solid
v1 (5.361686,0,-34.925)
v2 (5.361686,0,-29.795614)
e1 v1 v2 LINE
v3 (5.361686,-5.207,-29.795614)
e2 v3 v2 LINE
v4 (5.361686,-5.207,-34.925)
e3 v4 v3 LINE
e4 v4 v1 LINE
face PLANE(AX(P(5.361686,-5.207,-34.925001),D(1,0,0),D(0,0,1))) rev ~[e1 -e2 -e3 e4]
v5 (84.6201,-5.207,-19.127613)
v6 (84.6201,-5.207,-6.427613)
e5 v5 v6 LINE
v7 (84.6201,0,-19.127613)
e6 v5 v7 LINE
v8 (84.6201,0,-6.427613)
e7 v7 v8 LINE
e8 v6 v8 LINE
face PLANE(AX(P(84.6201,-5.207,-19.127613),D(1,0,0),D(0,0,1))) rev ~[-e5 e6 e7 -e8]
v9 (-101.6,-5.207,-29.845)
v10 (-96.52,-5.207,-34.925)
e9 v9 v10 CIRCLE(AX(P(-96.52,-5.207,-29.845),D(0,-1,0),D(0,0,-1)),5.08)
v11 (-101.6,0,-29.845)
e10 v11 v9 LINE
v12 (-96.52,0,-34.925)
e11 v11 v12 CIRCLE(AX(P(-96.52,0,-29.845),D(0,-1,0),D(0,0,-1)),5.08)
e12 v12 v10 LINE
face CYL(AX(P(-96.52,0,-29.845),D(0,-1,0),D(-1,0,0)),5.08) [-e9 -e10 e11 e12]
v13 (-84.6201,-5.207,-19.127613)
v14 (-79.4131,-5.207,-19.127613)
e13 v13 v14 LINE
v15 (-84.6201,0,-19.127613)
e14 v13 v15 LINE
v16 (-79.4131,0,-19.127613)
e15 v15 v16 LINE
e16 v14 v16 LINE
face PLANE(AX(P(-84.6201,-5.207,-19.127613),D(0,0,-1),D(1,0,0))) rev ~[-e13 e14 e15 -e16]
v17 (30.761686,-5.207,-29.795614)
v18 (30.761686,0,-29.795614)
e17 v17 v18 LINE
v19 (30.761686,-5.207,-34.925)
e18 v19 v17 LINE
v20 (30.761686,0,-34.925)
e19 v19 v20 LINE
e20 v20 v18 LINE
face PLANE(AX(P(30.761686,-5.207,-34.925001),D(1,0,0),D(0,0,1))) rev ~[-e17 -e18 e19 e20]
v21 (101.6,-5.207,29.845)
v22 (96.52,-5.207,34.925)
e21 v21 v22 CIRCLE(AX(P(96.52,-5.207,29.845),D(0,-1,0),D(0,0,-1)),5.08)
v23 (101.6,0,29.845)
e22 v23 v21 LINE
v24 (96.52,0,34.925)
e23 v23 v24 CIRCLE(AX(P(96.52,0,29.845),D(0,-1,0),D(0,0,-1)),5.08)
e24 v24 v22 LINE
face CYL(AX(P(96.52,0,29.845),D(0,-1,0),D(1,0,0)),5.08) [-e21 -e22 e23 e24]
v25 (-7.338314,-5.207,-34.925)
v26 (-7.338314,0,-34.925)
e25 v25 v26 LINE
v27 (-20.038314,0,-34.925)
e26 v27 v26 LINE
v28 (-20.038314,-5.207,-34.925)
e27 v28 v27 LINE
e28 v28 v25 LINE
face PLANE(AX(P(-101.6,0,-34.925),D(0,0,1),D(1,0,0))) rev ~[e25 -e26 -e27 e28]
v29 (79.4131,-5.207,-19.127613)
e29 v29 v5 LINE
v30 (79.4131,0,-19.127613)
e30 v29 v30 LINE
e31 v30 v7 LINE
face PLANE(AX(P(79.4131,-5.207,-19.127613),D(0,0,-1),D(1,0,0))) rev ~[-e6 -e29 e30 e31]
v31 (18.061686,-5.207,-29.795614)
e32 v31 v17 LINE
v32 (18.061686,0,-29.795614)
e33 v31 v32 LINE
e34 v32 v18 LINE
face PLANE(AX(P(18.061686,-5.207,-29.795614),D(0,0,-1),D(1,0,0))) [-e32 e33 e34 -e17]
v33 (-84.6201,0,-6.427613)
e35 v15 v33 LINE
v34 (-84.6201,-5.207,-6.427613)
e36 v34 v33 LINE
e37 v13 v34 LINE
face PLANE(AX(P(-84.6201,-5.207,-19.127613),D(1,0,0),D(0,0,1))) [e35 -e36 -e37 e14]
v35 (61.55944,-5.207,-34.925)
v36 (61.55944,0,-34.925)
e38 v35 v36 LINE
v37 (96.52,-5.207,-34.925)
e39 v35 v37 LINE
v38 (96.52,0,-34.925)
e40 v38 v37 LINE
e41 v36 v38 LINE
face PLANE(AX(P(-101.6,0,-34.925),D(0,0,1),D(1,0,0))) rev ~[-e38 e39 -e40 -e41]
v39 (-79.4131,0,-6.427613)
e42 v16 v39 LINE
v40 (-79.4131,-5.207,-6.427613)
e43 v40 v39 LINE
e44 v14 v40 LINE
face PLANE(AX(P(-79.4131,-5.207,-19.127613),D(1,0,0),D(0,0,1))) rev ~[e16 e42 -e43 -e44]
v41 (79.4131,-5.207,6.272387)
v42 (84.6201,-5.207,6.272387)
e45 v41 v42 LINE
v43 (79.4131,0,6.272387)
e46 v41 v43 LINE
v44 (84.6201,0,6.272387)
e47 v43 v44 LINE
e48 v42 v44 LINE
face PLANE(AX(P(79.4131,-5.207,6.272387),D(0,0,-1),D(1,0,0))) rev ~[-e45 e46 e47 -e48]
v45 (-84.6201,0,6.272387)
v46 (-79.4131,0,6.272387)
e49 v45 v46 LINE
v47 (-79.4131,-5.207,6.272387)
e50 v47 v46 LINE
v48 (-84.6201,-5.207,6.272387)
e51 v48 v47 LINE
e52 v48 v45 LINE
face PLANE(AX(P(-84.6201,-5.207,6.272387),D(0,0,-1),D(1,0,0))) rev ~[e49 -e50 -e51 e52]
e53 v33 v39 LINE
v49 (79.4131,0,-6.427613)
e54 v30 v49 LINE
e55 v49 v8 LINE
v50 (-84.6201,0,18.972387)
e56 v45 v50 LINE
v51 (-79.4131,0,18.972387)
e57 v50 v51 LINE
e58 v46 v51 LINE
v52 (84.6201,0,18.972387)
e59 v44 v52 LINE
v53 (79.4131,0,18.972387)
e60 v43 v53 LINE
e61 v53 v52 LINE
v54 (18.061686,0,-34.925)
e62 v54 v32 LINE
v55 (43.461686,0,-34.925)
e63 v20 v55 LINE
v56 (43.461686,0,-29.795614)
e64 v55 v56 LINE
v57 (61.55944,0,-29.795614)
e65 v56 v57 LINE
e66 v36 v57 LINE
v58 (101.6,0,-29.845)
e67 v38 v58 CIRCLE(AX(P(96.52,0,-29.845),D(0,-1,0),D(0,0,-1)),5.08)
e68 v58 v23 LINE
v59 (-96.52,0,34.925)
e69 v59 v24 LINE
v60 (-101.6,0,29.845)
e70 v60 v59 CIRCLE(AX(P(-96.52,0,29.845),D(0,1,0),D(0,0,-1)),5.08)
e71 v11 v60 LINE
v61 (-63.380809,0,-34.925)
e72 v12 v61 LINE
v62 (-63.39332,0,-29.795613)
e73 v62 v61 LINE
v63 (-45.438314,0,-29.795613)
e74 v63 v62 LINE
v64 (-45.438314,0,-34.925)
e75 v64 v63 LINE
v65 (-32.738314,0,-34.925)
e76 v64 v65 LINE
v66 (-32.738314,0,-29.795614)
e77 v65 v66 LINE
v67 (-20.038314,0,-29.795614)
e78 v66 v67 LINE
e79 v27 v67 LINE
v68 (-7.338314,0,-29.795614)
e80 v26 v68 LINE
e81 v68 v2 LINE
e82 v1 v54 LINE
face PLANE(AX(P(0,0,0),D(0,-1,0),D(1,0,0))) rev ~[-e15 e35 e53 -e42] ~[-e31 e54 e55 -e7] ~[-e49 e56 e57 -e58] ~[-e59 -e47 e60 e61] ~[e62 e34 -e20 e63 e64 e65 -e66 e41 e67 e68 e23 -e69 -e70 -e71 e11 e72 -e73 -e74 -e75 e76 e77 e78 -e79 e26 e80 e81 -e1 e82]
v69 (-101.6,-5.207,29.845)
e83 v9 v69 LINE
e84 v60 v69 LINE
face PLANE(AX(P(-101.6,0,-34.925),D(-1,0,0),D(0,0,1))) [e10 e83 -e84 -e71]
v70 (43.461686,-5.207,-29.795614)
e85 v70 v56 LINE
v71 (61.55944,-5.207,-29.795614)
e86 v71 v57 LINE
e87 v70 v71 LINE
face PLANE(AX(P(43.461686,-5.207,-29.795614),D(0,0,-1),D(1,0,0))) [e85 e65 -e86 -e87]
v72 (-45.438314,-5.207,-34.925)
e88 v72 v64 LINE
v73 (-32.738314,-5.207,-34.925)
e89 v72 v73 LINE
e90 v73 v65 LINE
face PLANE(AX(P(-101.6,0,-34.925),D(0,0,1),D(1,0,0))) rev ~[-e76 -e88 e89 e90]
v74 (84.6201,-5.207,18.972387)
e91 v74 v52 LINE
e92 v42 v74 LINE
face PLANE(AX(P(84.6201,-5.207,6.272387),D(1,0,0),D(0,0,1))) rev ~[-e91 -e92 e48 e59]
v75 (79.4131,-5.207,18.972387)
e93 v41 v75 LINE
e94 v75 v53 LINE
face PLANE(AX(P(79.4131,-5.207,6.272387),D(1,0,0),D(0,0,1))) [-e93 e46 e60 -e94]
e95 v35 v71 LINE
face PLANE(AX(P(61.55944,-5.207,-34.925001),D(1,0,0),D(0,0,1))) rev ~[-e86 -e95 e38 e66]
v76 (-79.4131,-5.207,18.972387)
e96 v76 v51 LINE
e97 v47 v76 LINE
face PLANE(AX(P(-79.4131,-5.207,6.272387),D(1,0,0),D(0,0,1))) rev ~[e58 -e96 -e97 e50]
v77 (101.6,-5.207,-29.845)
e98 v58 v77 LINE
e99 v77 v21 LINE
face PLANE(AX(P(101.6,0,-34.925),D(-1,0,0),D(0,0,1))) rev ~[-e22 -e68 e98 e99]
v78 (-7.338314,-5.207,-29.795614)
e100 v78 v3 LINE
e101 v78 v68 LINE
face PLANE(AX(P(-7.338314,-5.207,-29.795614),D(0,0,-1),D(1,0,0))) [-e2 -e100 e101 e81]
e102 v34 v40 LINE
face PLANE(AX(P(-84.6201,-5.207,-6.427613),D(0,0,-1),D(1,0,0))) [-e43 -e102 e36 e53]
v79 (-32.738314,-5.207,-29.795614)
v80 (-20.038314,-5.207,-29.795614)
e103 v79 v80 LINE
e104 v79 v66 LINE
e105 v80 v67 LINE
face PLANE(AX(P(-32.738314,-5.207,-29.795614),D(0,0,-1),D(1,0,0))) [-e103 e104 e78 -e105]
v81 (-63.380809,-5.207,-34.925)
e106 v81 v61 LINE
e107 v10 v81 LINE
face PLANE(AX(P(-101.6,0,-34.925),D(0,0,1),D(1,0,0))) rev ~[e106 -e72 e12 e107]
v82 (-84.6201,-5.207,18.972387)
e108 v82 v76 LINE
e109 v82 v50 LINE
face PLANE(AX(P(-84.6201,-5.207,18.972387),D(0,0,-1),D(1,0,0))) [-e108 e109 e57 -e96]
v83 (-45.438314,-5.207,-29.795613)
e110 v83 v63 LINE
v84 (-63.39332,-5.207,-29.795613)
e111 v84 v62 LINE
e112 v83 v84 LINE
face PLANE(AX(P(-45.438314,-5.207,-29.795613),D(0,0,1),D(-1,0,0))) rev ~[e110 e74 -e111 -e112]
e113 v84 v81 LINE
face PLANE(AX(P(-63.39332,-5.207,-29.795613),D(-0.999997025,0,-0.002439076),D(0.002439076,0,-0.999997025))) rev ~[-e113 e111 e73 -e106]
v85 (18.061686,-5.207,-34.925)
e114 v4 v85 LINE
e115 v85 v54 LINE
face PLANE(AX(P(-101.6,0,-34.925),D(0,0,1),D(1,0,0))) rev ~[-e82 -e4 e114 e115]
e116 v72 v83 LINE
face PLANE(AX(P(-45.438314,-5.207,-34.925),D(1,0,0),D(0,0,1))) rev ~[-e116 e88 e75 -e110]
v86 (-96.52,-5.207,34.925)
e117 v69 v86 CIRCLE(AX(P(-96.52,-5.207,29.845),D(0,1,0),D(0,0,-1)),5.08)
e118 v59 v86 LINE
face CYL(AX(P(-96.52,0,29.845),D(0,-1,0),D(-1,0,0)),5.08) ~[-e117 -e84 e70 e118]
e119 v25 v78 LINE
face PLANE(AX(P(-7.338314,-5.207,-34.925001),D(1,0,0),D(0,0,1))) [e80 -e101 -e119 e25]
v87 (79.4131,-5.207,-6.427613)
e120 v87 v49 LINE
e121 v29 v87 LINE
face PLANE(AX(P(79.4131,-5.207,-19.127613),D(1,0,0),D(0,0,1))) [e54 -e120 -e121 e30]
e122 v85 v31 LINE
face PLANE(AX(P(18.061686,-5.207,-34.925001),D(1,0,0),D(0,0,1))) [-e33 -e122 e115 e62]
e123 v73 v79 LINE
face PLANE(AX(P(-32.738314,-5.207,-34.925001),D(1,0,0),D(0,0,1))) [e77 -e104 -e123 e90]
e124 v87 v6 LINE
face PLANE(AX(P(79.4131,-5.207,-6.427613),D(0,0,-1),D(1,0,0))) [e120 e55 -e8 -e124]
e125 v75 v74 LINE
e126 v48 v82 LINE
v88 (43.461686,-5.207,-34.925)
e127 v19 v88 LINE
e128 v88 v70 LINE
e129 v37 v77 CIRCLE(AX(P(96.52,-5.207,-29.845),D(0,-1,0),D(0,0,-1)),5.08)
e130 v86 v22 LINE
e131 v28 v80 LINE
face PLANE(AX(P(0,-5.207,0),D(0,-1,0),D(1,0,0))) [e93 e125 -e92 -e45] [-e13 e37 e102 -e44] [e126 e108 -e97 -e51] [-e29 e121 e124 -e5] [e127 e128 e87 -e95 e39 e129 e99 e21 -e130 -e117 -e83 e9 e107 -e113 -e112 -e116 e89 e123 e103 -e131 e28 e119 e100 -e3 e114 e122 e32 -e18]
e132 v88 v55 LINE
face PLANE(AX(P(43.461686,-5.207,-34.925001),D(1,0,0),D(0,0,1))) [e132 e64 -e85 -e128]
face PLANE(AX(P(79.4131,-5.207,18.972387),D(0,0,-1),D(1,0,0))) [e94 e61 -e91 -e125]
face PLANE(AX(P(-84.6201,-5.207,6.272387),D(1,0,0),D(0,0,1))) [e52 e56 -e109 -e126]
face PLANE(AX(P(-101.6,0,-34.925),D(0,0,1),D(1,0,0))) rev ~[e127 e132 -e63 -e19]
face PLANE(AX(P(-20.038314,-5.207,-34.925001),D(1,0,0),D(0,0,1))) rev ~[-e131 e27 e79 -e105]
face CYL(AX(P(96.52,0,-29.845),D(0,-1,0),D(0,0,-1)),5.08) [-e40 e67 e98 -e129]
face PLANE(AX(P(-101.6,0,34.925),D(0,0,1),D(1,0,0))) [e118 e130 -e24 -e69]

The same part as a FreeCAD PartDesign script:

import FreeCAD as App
import Part
import Sketcher
Q = App.Units.Quantity


def edges_at(feature, points):
    """Names of the edges that pass closest to the given points."""
    edges = feature.Shape.Edges
    near = lambda p: min(range(len(edges)), key=lambda i: edges[i].distToShape(Part.Vertex(*p))[0])
    return sorted({f"Edge{near(p) + 1}" for p in points})

doc = App.newDocument("Part")
body = doc.addObject("PartDesign::Body", "Body")

# Sketch on XZ plane
sketch1 = body.newObject("Sketcher::SketchObject", "Sketch")
sketch1.AttachmentSupport = (doc.getObject("XZ_Plane"), [""])
sketch1.MapMode = "FlatFace"
sketch1.addGeometry(Part.LineSegment(App.Vector(-102, 35, 0), App.Vector(-102, -35, 0)), False)
sketch1.addGeometry(Part.LineSegment(App.Vector(-102, -35, 0), App.Vector(102, -35, 0)), False)
sketch1.addGeometry(Part.LineSegment(App.Vector(102, -35, 0), App.Vector(102, 35, 0)), False)
sketch1.addGeometry(Part.LineSegment(App.Vector(102, 35, 0), App.Vector(-102, 35, 0)), False)
sketch1.addConstraint(Sketcher.Constraint("Coincident", 0, 2, 1, 1))
sketch1.addConstraint(Sketcher.Constraint("Coincident", 1, 2, 2, 1))
sketch1.addConstraint(Sketcher.Constraint("Coincident", 2, 2, 3, 1))
sketch1.addConstraint(Sketcher.Constraint("Coincident", 3, 2, 0, 1))
sketch1.addConstraint(Sketcher.Constraint("Vertical", 0))
sketch1.addConstraint(Sketcher.Constraint("Horizontal", 1))
sketch1.addConstraint(Sketcher.Constraint("Vertical", 2))
sketch1.addConstraint(Sketcher.Constraint("Horizontal", 3))
sketch1.addConstraint(Sketcher.Constraint("Symmetric", 0, 2, 2, 2, -1, 1))
sketch1.addConstraint(Sketcher.Constraint("DistanceX", 1, 1, 1, 2, Q("8 in")))
sketch1.addConstraint(Sketcher.Constraint("DistanceY", 0, 2, 0, 1, Q("2.75 in")))
pad1 = body.newObject("PartDesign::Pad", "Pad")
pad1.Profile = sketch1
pad1.Length = Q("0.205 in")
doc.recompute()

fillet = body.newObject("PartDesign::Fillet", "Fillet")
fillet.Base = (pad1, edges_at(pad1, [
    (-101.6, -2.603, 34.925),
    (-101.6, -2.603, -34.925),
    (101.6, -2.603, -34.925),
    (101.6, -2.603, 34.925),
]))
fillet.Radius = Q("0.2 in")

# Sketch on XZ plane
sketch2 = body.newObject("Sketcher::SketchObject", "Sketch001")
sketch2.AttachmentSupport = (doc.getObject("XZ_Plane"), [""])
sketch2.MapMode = "FlatFace"
sketch2.AttachmentOffset = App.Placement(App.Vector(0, 0, 0.205 * 25.4), App.Rotation())
sketch2.addGeometry(Part.LineSegment(App.Vector(-85, 19, 0), App.Vector(-85, 6, 0)), False)
sketch2.addGeometry(Part.LineSegment(App.Vector(-85, 6, 0), App.Vector(-79, 6, 0)), False)
sketch2.addGeometry(Part.LineSegment(App.Vector(-79, 6, 0), App.Vector(-79, 19, 0)), False)
sketch2.addGeometry(Part.LineSegment(App.Vector(-79, 19, 0), App.Vector(-85, 19, 0)), False)
sketch2.addGeometry(Part.LineSegment(App.Vector(-85, -6, 0), App.Vector(-85, -19, 0)), False)
sketch2.addGeometry(Part.LineSegment(App.Vector(-85, -19, 0), App.Vector(-79, -19, 0)), False)
sketch2.addGeometry(Part.LineSegment(App.Vector(-79, -19, 0), App.Vector(-79, -6, 0)), False)
sketch2.addGeometry(Part.LineSegment(App.Vector(-79, -6, 0), App.Vector(-85, -6, 0)), False)
sketch2.addGeometry(Part.LineSegment(App.Vector(-63, -35, 0), App.Vector(-45, -35, 0)), False)
sketch2.addGeometry(Part.LineSegment(App.Vector(-45, -35, 0), App.Vector(-45, -30, 0)), False)
sketch2.addGeometry(Part.LineSegment(App.Vector(-45, -30, 0), App.Vector(-63, -30, 0)), False)
sketch2.addGeometry(Part.LineSegment(App.Vector(-63, -30, 0), App.Vector(-63, -35, 0)), False)
sketch2.addGeometry(Part.LineSegment(App.Vector(-33, -30, 0), App.Vector(-33, -35, 0)), False)
sketch2.addGeometry(Part.LineSegment(App.Vector(-33, -35, 0), App.Vector(-20, -35, 0)), False)
sketch2.addGeometry(Part.LineSegment(App.Vector(-20, -35, 0), App.Vector(-20, -30, 0)), False)
sketch2.addGeometry(Part.LineSegment(App.Vector(-20, -30, 0), App.Vector(-33, -30, 0)), False)
sketch2.addGeometry(Part.LineSegment(App.Vector(-7, -30, 0), App.Vector(-7, -35, 0)), False)
sketch2.addGeometry(Part.LineSegment(App.Vector(-7, -35, 0), App.Vector(5, -35, 0)), False)
sketch2.addGeometry(Part.LineSegment(App.Vector(5, -35, 0), App.Vector(5, -30, 0)), False)
sketch2.addGeometry(Part.LineSegment(App.Vector(5, -30, 0), App.Vector(-7, -30, 0)), False)
sketch2.addGeometry(Part.LineSegment(App.Vector(18, -30, 0), App.Vector(18, -35, 0)), False)
sketch2.addGeometry(Part.LineSegment(App.Vector(18, -35, 0), App.Vector(31, -35, 0)), False)
sketch2.addGeometry(Part.LineSegment(App.Vector(31, -35, 0), App.Vector(31, -30, 0)), False)
sketch2.addGeometry(Part.LineSegment(App.Vector(31, -30, 0), App.Vector(18, -30, 0)), False)
sketch2.addGeometry(Part.LineSegment(App.Vector(43, -30, 0), App.Vector(43, -35, 0)), False)
sketch2.addGeometry(Part.LineSegment(App.Vector(43, -35, 0), App.Vector(62, -35, 0)), False)
sketch2.addGeometry(Part.LineSegment(App.Vector(62, -35, 0), App.Vector(62, -30, 0)), False)
sketch2.addGeometry(Part.LineSegment(App.Vector(62, -30, 0), App.Vector(43, -30, 0)), False)
sketch2.addGeometry(Part.LineSegment(App.Vector(79, -6, 0), App.Vector(79, -19, 0)), False)
sketch2.addGeometry(Part.LineSegment(App.Vector(79, -19, 0), App.Vector(85, -19, 0)), False)
sketch2.addGeometry(Part.LineSegment(App.Vector(85, -19, 0), App.Vector(85, -6, 0)), False)
sketch2.addGeometry(Part.LineSegment(App.Vector(85, -6, 0), App.Vector(79, -6, 0)), False)
sketch2.addGeometry(Part.LineSegment(App.Vector(79, 19, 0), App.Vector(79, 6, 0)), False)
sketch2.addGeometry(Part.LineSegment(App.Vector(79, 6, 0), App.Vector(85, 6, 0)), False)
sketch2.addGeometry(Part.LineSegment(App.Vector(85, 6, 0), App.Vector(85, 19, 0)), False)
sketch2.addGeometry(Part.LineSegment(App.Vector(85, 19, 0), App.Vector(79, 19, 0)), False)
sketch2.addConstraint(Sketcher.Constraint("Coincident", 0, 2, 1, 1))
sketch2.addConstraint(Sketcher.Constraint("Coincident", 1, 2, 2, 1))
sketch2.addConstraint(Sketcher.Constraint("Coincident", 2, 2, 3, 1))
sketch2.addConstraint(Sketcher.Constraint("Coincident", 3, 2, 0, 1))
sketch2.addConstraint(Sketcher.Constraint("Coincident", 4, 2, 5, 1))
sketch2.addConstraint(Sketcher.Constraint("Coincident", 5, 2, 6, 1))
sketch2.addConstraint(Sketcher.Constraint("Coincident", 6, 2, 7, 1))
sketch2.addConstraint(Sketcher.Constraint("Coincident", 7, 2, 4, 1))
sketch2.addConstraint(Sketcher.Constraint("Coincident", 8, 2, 9, 1))
sketch2.addConstraint(Sketcher.Constraint("Coincident", 9, 2, 10, 1))
sketch2.addConstraint(Sketcher.Constraint("Coincident", 10, 2, 11, 1))
sketch2.addConstraint(Sketcher.Constraint("Coincident", 11, 2, 8, 1))
sketch2.addConstraint(Sketcher.Constraint("Coincident", 12, 2, 13, 1))
sketch2.addConstraint(Sketcher.Constraint("Coincident", 13, 2, 14, 1))
sketch2.addConstraint(Sketcher.Constraint("Coincident", 14, 2, 15, 1))
sketch2.addConstraint(Sketcher.Constraint("Coincident", 15, 2, 12, 1))
sketch2.addConstraint(Sketcher.Constraint("Coincident", 16, 2, 17, 1))
sketch2.addConstraint(Sketcher.Constraint("Coincident", 17, 2, 18, 1))
sketch2.addConstraint(Sketcher.Constraint("Coincident", 18, 2, 19, 1))
sketch2.addConstraint(Sketcher.Constraint("Coincident", 19, 2, 16, 1))
sketch2.addConstraint(Sketcher.Constraint("Coincident", 20, 2, 21, 1))
sketch2.addConstraint(Sketcher.Constraint("Coincident", 21, 2, 22, 1))
sketch2.addConstraint(Sketcher.Constraint("Coincident", 22, 2, 23, 1))
sketch2.addConstraint(Sketcher.Constraint("Coincident", 23, 2, 20, 1))
sketch2.addConstraint(Sketcher.Constraint("Coincident", 24, 2, 25, 1))
sketch2.addConstraint(Sketcher.Constraint("Coincident", 25, 2, 26, 1))
sketch2.addConstraint(Sketcher.Constraint("Coincident", 26, 2, 27, 1))
sketch2.addConstraint(Sketcher.Constraint("Coincident", 27, 2, 24, 1))
sketch2.addConstraint(Sketcher.Constraint("Coincident", 28, 2, 29, 1))
sketch2.addConstraint(Sketcher.Constraint("Coincident", 29, 2, 30, 1))
sketch2.addConstraint(Sketcher.Constraint("Coincident", 30, 2, 31, 1))
sketch2.addConstraint(Sketcher.Constraint("Coincident", 31, 2, 28, 1))
sketch2.addConstraint(Sketcher.Constraint("Coincident", 32, 2, 33, 1))
sketch2.addConstraint(Sketcher.Constraint("Coincident", 33, 2, 34, 1))
sketch2.addConstraint(Sketcher.Constraint("Coincident", 34, 2, 35, 1))
sketch2.addConstraint(Sketcher.Constraint("Coincident", 35, 2, 32, 1))
sketch2.addConstraint(Sketcher.Constraint("Vertical", 0))
sketch2.addConstraint(Sketcher.Constraint("Horizontal", 1))
sketch2.addConstraint(Sketcher.Constraint("Vertical", 2))
sketch2.addConstraint(Sketcher.Constraint("Horizontal", 3))
sketch2.addConstraint(Sketcher.Constraint("Vertical", 4))
sketch2.addConstraint(Sketcher.Constraint("Horizontal", 5))
sketch2.addConstraint(Sketcher.Constraint("Vertical", 6))
sketch2.addConstraint(Sketcher.Constraint("Horizontal", 7))
sketch2.addConstraint(Sketcher.Constraint("Horizontal", 8))
sketch2.addConstraint(Sketcher.Constraint("Vertical", 9))
sketch2.addConstraint(Sketcher.Constraint("Horizontal", 10))
sketch2.addConstraint(Sketcher.Constraint("Vertical", 12))
sketch2.addConstraint(Sketcher.Constraint("Horizontal", 13))
sketch2.addConstraint(Sketcher.Constraint("Vertical", 14))
sketch2.addConstraint(Sketcher.Constraint("Horizontal", 15))
sketch2.addConstraint(Sketcher.Constraint("Vertical", 16))
sketch2.addConstraint(Sketcher.Constraint("Horizontal", 17))
sketch2.addConstraint(Sketcher.Constraint("Vertical", 18))
sketch2.addConstraint(Sketcher.Constraint("Horizontal", 19))
sketch2.addConstraint(Sketcher.Constraint("Vertical", 20))
sketch2.addConstraint(Sketcher.Constraint("Horizontal", 21))
sketch2.addConstraint(Sketcher.Constraint("Vertical", 22))
sketch2.addConstraint(Sketcher.Constraint("Horizontal", 23))
sketch2.addConstraint(Sketcher.Constraint("Vertical", 24))
sketch2.addConstraint(Sketcher.Constraint("Horizontal", 25))
sketch2.addConstraint(Sketcher.Constraint("Vertical", 26))
sketch2.addConstraint(Sketcher.Constraint("Horizontal", 27))
sketch2.addConstraint(Sketcher.Constraint("Vertical", 28))
sketch2.addConstraint(Sketcher.Constraint("Horizontal", 29))
sketch2.addConstraint(Sketcher.Constraint("Vertical", 30))
sketch2.addConstraint(Sketcher.Constraint("Horizontal", 31))
sketch2.addConstraint(Sketcher.Constraint("Vertical", 32))
sketch2.addConstraint(Sketcher.Constraint("Horizontal", 33))
sketch2.addConstraint(Sketcher.Constraint("Vertical", 34))
sketch2.addConstraint(Sketcher.Constraint("Horizontal", 35))
sketch2.addConstraint(Sketcher.Constraint("Symmetric", 5, 2, 28, 2, -2))
sketch2.addConstraint(Sketcher.Constraint("Symmetric", 7, 2, 30, 2, -2))
sketch2.addConstraint(Sketcher.Constraint("Symmetric", 1, 2, 32, 2, -2))
sketch2.addConstraint(Sketcher.Constraint("Symmetric", 3, 2, 34, 2, -2))
sketch2.addConstraint(Sketcher.Constraint("Horizontal", 11, 2, 12, 2))
sketch2.addConstraint(Sketcher.Constraint("Horizontal", 10, 2, 14, 2))
sketch2.addConstraint(Sketcher.Constraint("Horizontal", 13, 2, 16, 2))
sketch2.addConstraint(Sketcher.Constraint("Horizontal", 15, 2, 18, 2))
sketch2.addConstraint(Sketcher.Constraint("Horizontal", 17, 2, 20, 2))
sketch2.addConstraint(Sketcher.Constraint("Horizontal", 19, 2, 22, 2))
sketch2.addConstraint(Sketcher.Constraint("Horizontal", 21, 2, 24, 2))
sketch2.addConstraint(Sketcher.Constraint("Horizontal", 23, 2, 26, 2))
sketch2.addConstraint(Sketcher.Constraint("Vertical", 3, 2, 4, 2))
sketch2.addConstraint(Sketcher.Constraint("Vertical", 2, 2, 5, 2))
sketch2.addConstraint(Sketcher.Constraint("Equal", 15, 17))
sketch2.addConstraint(Sketcher.Constraint("Equal", 19, 21))
sketch2.addConstraint(Sketcher.Constraint("Equal", 23, 0))
sketch2.addConstraint(Sketcher.Constraint("Equal", 2, 4))
sketch2.addConstraint(Sketcher.Constraint("DistanceX", 13, 1, 13, 2, Q("0.5 in")))
sketch2.addConstraint(Sketcher.Constraint("DistanceY", 4, 2, 0, 2, Q("1 in")))
sketch2.addConstraint(Sketcher.Constraint("DistanceX", 8, 2, 13, 2, Q("1 in")))
sketch2.addConstraint(Sketcher.Constraint("DistanceX", 12, 2, 16, 2, Q("1 in")))
sketch2.addConstraint(Sketcher.Constraint("DistanceX", 16, 2, 20, 2, Q("1 in")))
sketch2.addConstraint(Sketcher.Constraint("DistanceX", 20, 2, 24, 2, Q("1 in")))
sketch2.addConstraint(Sketcher.Constraint("DistanceX", 1, 1, 1, 2, Q("0.205 in")))
sketch2.addConstraint(Sketcher.Constraint("DistanceY", 9, 2, 5, 2, Q("0.42 in")))
sketch2.addConstraint(Sketcher.Constraint("DistanceY", 8, 2, -1, 1, Q("1.375 in")))
sketch2.addConstraint(Sketcher.Constraint("DistanceX", 0, 2, -1, 1, Q("3.3315 in")))
sketch2.addConstraint(Sketcher.Constraint("DistanceX", 10, 2, -1, 1, Q("2.4958 in")))
sketch2.addConstraint(Sketcher.Constraint("DistanceX", -1, 1, 25, 2, Q("2.4236 in")))
sketch2.addConstraint(Sketcher.Constraint("DistanceX", 8, 1, 8, 2, 17.942495))
sketch2.addConstraint(Sketcher.Constraint("DistanceX", 10, 2, 10, 1, 17.955006))
sketch2.addConstraint(Sketcher.Constraint("DistanceY", 9, 1, 9, 2, 5.129387))
pocket1 = body.newObject("PartDesign::Pocket", "Pocket")
pocket1.Profile = sketch2
pocket1.Type = "ThroughAll"

doc.recompute()
